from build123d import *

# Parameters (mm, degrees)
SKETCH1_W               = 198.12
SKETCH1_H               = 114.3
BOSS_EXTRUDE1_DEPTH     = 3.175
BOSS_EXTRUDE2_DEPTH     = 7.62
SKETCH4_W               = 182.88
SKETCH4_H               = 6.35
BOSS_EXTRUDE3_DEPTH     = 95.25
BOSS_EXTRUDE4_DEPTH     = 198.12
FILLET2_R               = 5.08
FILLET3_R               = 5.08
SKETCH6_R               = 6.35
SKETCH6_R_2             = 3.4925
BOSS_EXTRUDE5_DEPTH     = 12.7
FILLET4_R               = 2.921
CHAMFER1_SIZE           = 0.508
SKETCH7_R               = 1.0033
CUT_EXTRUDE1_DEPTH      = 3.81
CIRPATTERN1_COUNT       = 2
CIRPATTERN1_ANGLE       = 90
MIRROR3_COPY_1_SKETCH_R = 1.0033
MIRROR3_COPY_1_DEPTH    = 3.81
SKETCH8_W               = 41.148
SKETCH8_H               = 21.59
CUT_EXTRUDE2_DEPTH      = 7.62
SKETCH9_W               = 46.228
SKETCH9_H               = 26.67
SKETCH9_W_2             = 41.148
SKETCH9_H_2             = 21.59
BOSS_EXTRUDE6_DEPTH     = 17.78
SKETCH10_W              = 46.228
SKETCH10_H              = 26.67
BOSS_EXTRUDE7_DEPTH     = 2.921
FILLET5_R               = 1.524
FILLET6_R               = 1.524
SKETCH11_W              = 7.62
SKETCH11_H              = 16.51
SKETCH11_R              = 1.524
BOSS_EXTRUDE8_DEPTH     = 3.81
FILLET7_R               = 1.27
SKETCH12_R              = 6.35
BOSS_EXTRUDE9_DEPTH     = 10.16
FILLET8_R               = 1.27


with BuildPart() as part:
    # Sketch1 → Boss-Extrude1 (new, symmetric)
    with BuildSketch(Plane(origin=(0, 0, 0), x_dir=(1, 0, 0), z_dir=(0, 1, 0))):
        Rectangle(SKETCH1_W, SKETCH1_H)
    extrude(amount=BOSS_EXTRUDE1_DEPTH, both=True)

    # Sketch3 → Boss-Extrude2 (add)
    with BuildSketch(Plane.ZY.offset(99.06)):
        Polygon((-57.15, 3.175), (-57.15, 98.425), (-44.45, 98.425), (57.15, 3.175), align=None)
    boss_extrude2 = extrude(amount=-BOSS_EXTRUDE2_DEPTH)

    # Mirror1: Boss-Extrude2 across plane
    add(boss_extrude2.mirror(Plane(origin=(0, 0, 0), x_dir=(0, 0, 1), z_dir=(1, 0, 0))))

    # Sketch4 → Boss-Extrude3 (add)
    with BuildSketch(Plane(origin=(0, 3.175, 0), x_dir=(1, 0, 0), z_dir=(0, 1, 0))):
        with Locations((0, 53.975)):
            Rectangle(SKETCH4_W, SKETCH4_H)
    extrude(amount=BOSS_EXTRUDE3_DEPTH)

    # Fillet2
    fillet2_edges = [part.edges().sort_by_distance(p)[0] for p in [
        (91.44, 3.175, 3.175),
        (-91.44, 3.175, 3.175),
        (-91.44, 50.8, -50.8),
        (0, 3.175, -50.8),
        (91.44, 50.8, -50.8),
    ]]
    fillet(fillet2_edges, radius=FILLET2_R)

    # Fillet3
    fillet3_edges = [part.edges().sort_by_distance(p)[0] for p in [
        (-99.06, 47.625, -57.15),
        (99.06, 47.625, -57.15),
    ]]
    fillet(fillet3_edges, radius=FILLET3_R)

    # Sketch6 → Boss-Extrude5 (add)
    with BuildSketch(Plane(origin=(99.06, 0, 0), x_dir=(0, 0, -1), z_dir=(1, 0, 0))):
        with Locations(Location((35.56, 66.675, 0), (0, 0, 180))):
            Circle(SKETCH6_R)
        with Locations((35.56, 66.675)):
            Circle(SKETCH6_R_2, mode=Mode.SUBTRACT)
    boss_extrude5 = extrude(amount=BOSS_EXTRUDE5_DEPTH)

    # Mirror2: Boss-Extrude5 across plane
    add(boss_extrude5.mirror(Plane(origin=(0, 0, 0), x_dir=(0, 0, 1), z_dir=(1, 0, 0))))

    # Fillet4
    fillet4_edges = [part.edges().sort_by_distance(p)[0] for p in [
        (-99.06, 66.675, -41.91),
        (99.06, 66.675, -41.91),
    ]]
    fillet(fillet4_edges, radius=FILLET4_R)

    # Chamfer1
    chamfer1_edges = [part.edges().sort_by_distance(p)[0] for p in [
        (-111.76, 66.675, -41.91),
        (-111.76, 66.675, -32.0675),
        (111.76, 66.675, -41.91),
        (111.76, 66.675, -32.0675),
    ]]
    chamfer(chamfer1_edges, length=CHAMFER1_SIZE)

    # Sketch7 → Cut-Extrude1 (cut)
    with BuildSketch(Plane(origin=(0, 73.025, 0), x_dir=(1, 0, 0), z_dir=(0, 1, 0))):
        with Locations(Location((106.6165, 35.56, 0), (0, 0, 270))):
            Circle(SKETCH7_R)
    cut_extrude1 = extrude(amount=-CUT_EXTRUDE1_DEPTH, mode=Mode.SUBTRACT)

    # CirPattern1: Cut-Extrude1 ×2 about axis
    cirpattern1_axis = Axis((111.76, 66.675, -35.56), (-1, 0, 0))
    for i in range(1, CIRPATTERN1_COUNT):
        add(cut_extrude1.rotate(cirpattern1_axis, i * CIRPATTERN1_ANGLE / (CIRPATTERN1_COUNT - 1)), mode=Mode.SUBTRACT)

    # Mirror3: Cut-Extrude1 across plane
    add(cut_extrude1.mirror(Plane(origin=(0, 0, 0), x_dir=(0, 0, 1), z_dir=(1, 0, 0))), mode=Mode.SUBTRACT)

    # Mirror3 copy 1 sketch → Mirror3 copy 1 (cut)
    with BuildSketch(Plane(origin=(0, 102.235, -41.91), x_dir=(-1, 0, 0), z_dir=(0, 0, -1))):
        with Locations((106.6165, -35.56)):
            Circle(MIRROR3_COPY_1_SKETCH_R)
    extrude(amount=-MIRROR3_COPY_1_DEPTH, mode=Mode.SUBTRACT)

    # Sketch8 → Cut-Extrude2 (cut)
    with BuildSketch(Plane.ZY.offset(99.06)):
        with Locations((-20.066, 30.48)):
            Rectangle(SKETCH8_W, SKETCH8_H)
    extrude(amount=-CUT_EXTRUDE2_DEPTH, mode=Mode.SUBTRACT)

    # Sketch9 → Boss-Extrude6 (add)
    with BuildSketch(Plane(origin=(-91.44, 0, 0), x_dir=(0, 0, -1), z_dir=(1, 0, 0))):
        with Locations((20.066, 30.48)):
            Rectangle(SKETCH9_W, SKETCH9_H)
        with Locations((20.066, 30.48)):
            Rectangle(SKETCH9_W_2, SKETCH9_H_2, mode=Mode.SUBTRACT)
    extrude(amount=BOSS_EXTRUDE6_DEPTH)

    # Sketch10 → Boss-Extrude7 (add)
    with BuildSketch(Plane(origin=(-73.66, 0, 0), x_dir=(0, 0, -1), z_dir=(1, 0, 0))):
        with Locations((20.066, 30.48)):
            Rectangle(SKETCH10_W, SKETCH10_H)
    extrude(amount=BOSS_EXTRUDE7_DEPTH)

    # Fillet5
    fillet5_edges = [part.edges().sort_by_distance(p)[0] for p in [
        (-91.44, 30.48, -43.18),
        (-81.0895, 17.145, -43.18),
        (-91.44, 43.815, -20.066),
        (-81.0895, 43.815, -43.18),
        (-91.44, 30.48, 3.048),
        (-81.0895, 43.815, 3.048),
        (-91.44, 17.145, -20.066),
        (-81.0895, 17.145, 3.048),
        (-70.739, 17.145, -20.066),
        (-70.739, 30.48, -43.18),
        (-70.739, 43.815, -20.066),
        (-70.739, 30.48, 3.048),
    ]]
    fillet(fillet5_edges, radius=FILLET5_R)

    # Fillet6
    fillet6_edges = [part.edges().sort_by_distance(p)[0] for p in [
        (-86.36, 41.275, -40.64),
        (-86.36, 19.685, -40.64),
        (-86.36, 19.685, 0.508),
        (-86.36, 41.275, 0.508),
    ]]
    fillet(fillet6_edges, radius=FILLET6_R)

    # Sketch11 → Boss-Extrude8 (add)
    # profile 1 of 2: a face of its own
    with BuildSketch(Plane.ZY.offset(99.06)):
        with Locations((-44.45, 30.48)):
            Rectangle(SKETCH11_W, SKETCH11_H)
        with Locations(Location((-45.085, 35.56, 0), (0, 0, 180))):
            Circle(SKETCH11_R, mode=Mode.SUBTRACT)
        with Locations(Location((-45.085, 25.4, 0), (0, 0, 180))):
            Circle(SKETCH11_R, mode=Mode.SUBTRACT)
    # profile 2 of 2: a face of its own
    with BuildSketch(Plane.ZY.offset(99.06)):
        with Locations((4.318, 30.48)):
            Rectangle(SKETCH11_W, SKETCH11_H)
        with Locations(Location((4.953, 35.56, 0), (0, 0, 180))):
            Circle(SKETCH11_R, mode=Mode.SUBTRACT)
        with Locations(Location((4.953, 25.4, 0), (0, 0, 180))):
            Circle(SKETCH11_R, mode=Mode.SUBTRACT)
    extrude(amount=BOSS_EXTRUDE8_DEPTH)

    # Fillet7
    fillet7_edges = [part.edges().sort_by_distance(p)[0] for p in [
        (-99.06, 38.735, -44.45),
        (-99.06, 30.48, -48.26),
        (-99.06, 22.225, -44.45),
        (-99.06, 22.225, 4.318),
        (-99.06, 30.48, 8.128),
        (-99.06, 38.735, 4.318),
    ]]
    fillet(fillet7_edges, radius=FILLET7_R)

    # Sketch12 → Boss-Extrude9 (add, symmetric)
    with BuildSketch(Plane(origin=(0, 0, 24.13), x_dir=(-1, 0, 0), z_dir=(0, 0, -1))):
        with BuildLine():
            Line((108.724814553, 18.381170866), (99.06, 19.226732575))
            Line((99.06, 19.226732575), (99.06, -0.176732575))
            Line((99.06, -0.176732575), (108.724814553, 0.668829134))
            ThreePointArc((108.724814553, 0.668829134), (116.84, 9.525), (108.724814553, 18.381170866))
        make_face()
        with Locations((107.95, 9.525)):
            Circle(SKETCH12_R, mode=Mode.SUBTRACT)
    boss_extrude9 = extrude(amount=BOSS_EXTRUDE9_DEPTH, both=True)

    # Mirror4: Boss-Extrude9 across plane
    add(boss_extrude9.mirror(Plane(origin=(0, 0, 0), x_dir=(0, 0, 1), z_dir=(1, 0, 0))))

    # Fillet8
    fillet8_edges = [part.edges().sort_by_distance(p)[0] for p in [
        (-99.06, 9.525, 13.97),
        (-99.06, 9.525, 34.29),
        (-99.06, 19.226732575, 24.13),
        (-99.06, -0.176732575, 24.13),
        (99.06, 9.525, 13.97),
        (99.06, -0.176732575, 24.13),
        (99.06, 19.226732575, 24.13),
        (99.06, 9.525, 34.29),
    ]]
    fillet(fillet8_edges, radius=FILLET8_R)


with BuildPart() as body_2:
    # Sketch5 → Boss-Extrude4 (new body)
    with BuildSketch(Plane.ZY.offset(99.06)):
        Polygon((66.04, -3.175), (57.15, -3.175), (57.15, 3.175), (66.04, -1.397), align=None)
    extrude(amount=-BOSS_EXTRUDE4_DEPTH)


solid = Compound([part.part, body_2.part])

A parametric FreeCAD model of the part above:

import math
import FreeCAD as App
import Part
import Sketcher

V = App.Vector
Q = App.Units.Quantity


def edges_at(feature, points):
    """Names of the edges that pass closest to the given points."""
    edges = feature.Shape.Edges
    near = lambda p: min(range(len(edges)), key=lambda i: edges[i].distToShape(Part.Vertex(*p))[0])
    return sorted({f"Edge{near(p) + 1}" for p in points})

doc = App.newDocument("Part")
body = doc.addObject("PartDesign::Body", "Body")

# Sketch on XZ plane
sketch1 = body.newObject("Sketcher::SketchObject", "Sketch")
sketch1.AttachmentSupport = (doc.getObject("XZ_Plane"), [""])
sketch1.MapMode = "FlatFace"
sketch1.addGeometry([
    Part.LineSegment(V(-99, -57, 0), V(-99, 57, 0)),
    Part.LineSegment(V(-99, 57, 0), V(99, 57, 0)),
    Part.LineSegment(V(99, 57, 0), V(99, -57, 0)),
    Part.LineSegment(V(99, -57, 0), V(-99, -57, 0)),
], False)
sketch1.addConstraint([
    Sketcher.Constraint("Coincident", 0, 2, 1, 1),
    Sketcher.Constraint("Coincident", 1, 2, 2, 1),
    Sketcher.Constraint("Coincident", 2, 2, 3, 1),
    Sketcher.Constraint("Coincident", 3, 2, 0, 1),
    Sketcher.Constraint("Vertical", 0),
    Sketcher.Constraint("Horizontal", 1),
    Sketcher.Constraint("Vertical", 2),
    Sketcher.Constraint("Horizontal", 3),
    Sketcher.Constraint("Symmetric", 0, 2, 2, 2, -1, 1),
    Sketcher.Constraint("DistanceX", 1, 1, 1, 2, Q("7.8 in")),
    Sketcher.Constraint("DistanceY", 0, 1, 0, 2, Q("4.5 in")),
])
pad1 = body.newObject("PartDesign::Pad", "Pad")
pad1.Profile = sketch1
pad1.Length = Q("0.25 in")
pad1.Midplane = True

# Sketch on YZ plane
sketch2 = body.newObject("Sketcher::SketchObject", "Sketch001")
sketch2.AttachmentSupport = (doc.getObject("YZ_Plane"), [""])
sketch2.MapMode = "FlatFace"
sketch2.AttachmentOffset = App.Placement(V(0, 0, -3.9 * 25.4), App.Rotation())
sketch2.addGeometry([
    Part.LineSegment(V(98, -57, 0), V(3, -57, 0)),
    Part.LineSegment(V(3, -57, 0), V(3, 57, 0)),
    Part.LineSegment(V(3, 57, 0), V(98, -44, 0)),
    Part.LineSegment(V(98, -44, 0), V(98, -57, 0)),
], False)
sketch2.addConstraint([
    Sketcher.Constraint("Coincident", 0, 2, 1, 1),
    Sketcher.Constraint("Coincident", 1, 2, 2, 1),
    Sketcher.Constraint("Coincident", 2, 2, 3, 1),
    Sketcher.Constraint("Coincident", 3, 2, 0, 1),
    Sketcher.Constraint("Horizontal", 0),
    Sketcher.Constraint("Vertical", 1),
    Sketcher.Constraint("Vertical", 3),
    Sketcher.Constraint("DistanceY", 1, 1, 1, 2, Q("4.5 in")),
    Sketcher.Constraint("DistanceY", 3, 2, 3, 1, Q("0.5 in")),
    Sketcher.Constraint("DistanceX", 0, 2, 0, 1, Q("3.75 in")),
    Sketcher.Constraint("DistanceY", 0, 2, -1, 1, Q("2.25 in")),
    Sketcher.Constraint("DistanceX", -1, 1, 0, 2, Q("0.125 in")),
])
pad2 = body.newObject("PartDesign::Pad", "Pad001")
pad2.Profile = sketch2
pad2.Length = Q("0.3 in")
doc.recompute()

mirrored = body.newObject("PartDesign::Mirrored", "Mirrored")
mirrored.Originals = [pad2]
mirrored.MirrorPlane = (doc.getObject("YZ_Plane"), [""])
body.Tip = mirrored

# Sketch on XZ plane
sketch3 = body.newObject("Sketcher::SketchObject", "Sketch002")
sketch3.AttachmentSupport = (doc.getObject("XZ_Plane"), [""])
sketch3.MapMode = "FlatFace"
sketch3.AttachmentOffset = App.Placement(V(0, 0, -0.125 * 25.4), App.Rotation())
sketch3.addGeometry([
    Part.LineSegment(V(-91, -57, 0), V(-91, -51, 0)),
    Part.LineSegment(V(-91, -51, 0), V(91, -51, 0)),
    Part.LineSegment(V(91, -51, 0), V(91, -57, 0)),
    Part.LineSegment(V(91, -57, 0), V(-91, -57, 0)),
], False)
sketch3.addConstraint([
    Sketcher.Constraint("Coincident", 0, 2, 1, 1),
    Sketcher.Constraint("Coincident", 1, 2, 2, 1),
    Sketcher.Constraint("Coincident", 2, 2, 3, 1),
    Sketcher.Constraint("Coincident", 3, 2, 0, 1),
    Sketcher.Constraint("Vertical", 0),
    Sketcher.Constraint("Horizontal", 1),
    Sketcher.Constraint("Vertical", 2),
    Sketcher.Constraint("Horizontal", 3),
    Sketcher.Constraint("DistanceX", 1, 1, 1, 2, Q("7.2 in")),
    Sketcher.Constraint("DistanceY", 0, 2, -1, 1, Q("2 in")),
    Sketcher.Constraint("DistanceY", 0, 1, 0, 2, Q("0.25 in")),
    Sketcher.Constraint("DistanceX", 0, 2, -1, 1, Q("3.6 in")),
])
pad3 = body.newObject("PartDesign::Pad", "Pad002")
pad3.Profile = sketch3
pad3.Length = Q("3.75 in")
pad3.Reversed = True
doc.recompute()

fillet = body.newObject("PartDesign::Fillet", "Fillet")
fillet.Base = (pad3, edges_at(pad3, [
    (91.44, 3.175, 3.175),
    (-91.44, 3.175, 3.175),
    (-91.44, 50.8, -50.8),
    (0, 3.175, -50.8),
    (91.44, 50.8, -50.8),
]))
fillet.Radius = Q("0.2 in")
doc.recompute()

fillet2 = body.newObject("PartDesign::Fillet", "Fillet001")
fillet2.Base = (fillet, edges_at(fillet, [(-99.06, 47.625, -57.15), (99.06, 47.625, -57.15)]))
fillet2.Radius = Q("0.2 in")

# Sketch on YZ plane
sketch4 = body.newObject("Sketcher::SketchObject", "Sketch003")
sketch4.AttachmentSupport = (doc.getObject("YZ_Plane"), [""])
sketch4.MapMode = "FlatFace"
sketch4.AttachmentOffset = App.Placement(V(0, 0, 3.9 * 25.4), App.Rotation())
sketch4.addGeometry([
    Part.Circle(V(66.7, -35.6, 0), V(0, 0, 1), 6.3),
    Part.Circle(V(66.7, -35.6, 0), V(0, 0, 1), 3.5),
], False)
sketch4.addConstraint([
    Sketcher.Constraint("Coincident", 1, 3, 0, 3),
    Sketcher.Constraint("Diameter", 0, Q("0.5 in")),
    Sketcher.Constraint("Diameter", 1, Q("0.275 in")),
    Sketcher.Constraint("DistanceY", 0, 3, -1, 1, Q("1.4 in")),
    Sketcher.Constraint("DistanceX", -1, 1, 0, 3, Q("2.625 in")),
])
pad4 = body.newObject("PartDesign::Pad", "Pad003")
pad4.Profile = sketch4
pad4.Length = Q("0.5 in")
doc.recompute()

mirrored2 = body.newObject("PartDesign::Mirrored", "Mirrored001")
mirrored2.Originals = [pad4]
mirrored2.MirrorPlane = (doc.getObject("YZ_Plane"), [""])
body.Tip = mirrored2
doc.recompute()

fillet3 = body.newObject("PartDesign::Fillet", "Fillet002")
fillet3.Base = (mirrored2, edges_at(mirrored2, [(-99.06, 66.675, -41.91), (99.06, 66.675, -41.91)]))
fillet3.Radius = Q("0.115 in")
doc.recompute()

chamfer = body.newObject("PartDesign::Chamfer", "Chamfer")
chamfer.Base = (fillet3, edges_at(fillet3, [
    (-111.76, 66.675, -41.91),
    (-111.76, 66.675, -32.068),
    (111.76, 66.675, -41.91),
    (111.76, 66.675, -32.068),
]))
chamfer.Size = Q("0.02 in")

# Sketch on XZ plane
sketch5 = body.newObject("Sketcher::SketchObject", "Sketch004")
sketch5.AttachmentSupport = (doc.getObject("XZ_Plane"), [""])
sketch5.MapMode = "FlatFace"
sketch5.AttachmentOffset = App.Placement(V(0, 0, -2.875 * 25.4), App.Rotation())
sketch5.addGeometry(Part.Circle(V(106.6, -35.6, 0), V(0, 0, 1), 1), False)
sketch5.addConstraint([
    Sketcher.Constraint("Diameter", 0, Q("0.079 in")),
    Sketcher.Constraint("DistanceY", 0, 3, -1, 1, Q("1.4 in")),
    Sketcher.Constraint("DistanceX", -1, 1, 0, 3, Q("4.1975 in")),
])
pocket1 = body.newObject("PartDesign::Pocket", "Pocket")
pocket1.Profile = sketch5
pocket1.Length = Q("0.15 in")
pocket1.Reversed = True
doc.recompute()

datumline = body.newObject("PartDesign::Line", "DatumLine")
datumline.Placement = App.Placement(V(0, 66.675, -35.56), App.Rotation(V(0, 0, 1), V(-1, 0, 0)))
polarpattern = body.newObject("PartDesign::PolarPattern", "PolarPattern")
polarpattern.Originals = [pocket1]
polarpattern.Axis = (datumline, [""])
polarpattern.Angle = 90
polarpattern.Occurrences = 2
body.Tip = polarpattern
doc.recompute()

mirrored3 = body.newObject("PartDesign::Mirrored", "Mirrored002")
mirrored3.Originals = [pocket1]
mirrored3.MirrorPlane = (doc.getObject("YZ_Plane"), [""])
body.Tip = mirrored3

# Sketch on XY plane
sketch6 = body.newObject("Sketcher::SketchObject", "Sketch005")
sketch6.AttachmentSupport = (doc.getObject("XY_Plane"), [""])
sketch6.MapMode = "FlatFace"
sketch6.AttachmentOffset = App.Placement(V(0, 0, -1.65 * 25.4), App.Rotation())
sketch6.addGeometry(Part.Circle(V(-106.6, 66.7, 0), V(0, 0, 1), 1), False)
sketch6.addConstraint([
    Sketcher.Constraint("Diameter", 0, Q("0.079 in")),
    Sketcher.Constraint("DistanceY", -1, 1, 0, 3, Q("2.625 in")),
    Sketcher.Constraint("DistanceX", 0, 3, -1, 1, Q("4.1975 in")),
])
pocket2 = body.newObject("PartDesign::Pocket", "Pocket001")
pocket2.Profile = sketch6
pocket2.Length = Q("0.15 in")
pocket2.Reversed = True

# Sketch on YZ plane
sketch7 = body.newObject("Sketcher::SketchObject", "Sketch006")
sketch7.AttachmentSupport = (doc.getObject("YZ_Plane"), [""])
sketch7.MapMode = "FlatFace"
sketch7.AttachmentOffset = App.Placement(V(0, 0, -3.9 * 25.4), App.Rotation())
sketch7.addGeometry([
    Part.LineSegment(V(41, -41, 0), V(20, -41, 0)),
    Part.LineSegment(V(20, -41, 0), V(20, 1, 0)),
    Part.LineSegment(V(20, 1, 0), V(41, 1, 0)),
    Part.LineSegment(V(41, 1, 0), V(41, -41, 0)),
], False)
sketch7.addConstraint([
    Sketcher.Constraint("Coincident", 0, 2, 1, 1),
    Sketcher.Constraint("Coincident", 1, 2, 2, 1),
    Sketcher.Constraint("Coincident", 2, 2, 3, 1),
    Sketcher.Constraint("Coincident", 3, 2, 0, 1),
    Sketcher.Constraint("Horizontal", 0),
    Sketcher.Constraint("Vertical", 1),
    Sketcher.Constraint("Horizontal", 2),
    Sketcher.Constraint("Vertical", 3),
    Sketcher.Constraint("DistanceX", 0, 2, 0, 1, Q("0.85 in")),
    Sketcher.Constraint("DistanceY", 1, 1, 1, 2, Q("1.62 in")),
    Sketcher.Constraint("DistanceY", 0, 2, -1, 1, Q("1.6 in")),
    Sketcher.Constraint("DistanceX", -1, 1, 0, 2, Q("0.775 in")),
])
pocket3 = body.newObject("PartDesign::Pocket", "Pocket002")
pocket3.Profile = sketch7
pocket3.Length = Q("0.3 in")
pocket3.Reversed = True

# Sketch on YZ plane
sketch8 = body.newObject("Sketcher::SketchObject", "Sketch007")
sketch8.AttachmentSupport = (doc.getObject("YZ_Plane"), [""])
sketch8.MapMode = "FlatFace"
sketch8.AttachmentOffset = App.Placement(V(0, 0, -3.6 * 25.4), App.Rotation())
sketch8.addGeometry([
    Part.LineSegment(V(44, 3, 0), V(17, 3, 0)),  # 0
    Part.LineSegment(V(17, 3, 0), V(17, -43, 0)),  # 1
    Part.LineSegment(V(17, -43, 0), V(44, -43, 0)),  # 2
    Part.LineSegment(V(44, -43, 0), V(44, 3, 0)),  # 3
    Part.LineSegment(V(20, -41, 0), V(20, 1, 0)),  # 4
    Part.LineSegment(V(20, 1, 0), V(41, 1, 0)),  # 5
    Part.LineSegment(V(41, 1, 0), V(41, -41, 0)),  # 6
    Part.LineSegment(V(41, -41, 0), V(20, -41, 0)),  # 7
], False)
sketch8.addConstraint([
    Sketcher.Constraint("Coincident", 0, 2, 1, 1),
    Sketcher.Constraint("Coincident", 1, 2, 2, 1),
    Sketcher.Constraint("Coincident", 2, 2, 3, 1),
    Sketcher.Constraint("Coincident", 3, 2, 0, 1),
    Sketcher.Constraint("Coincident", 4, 2, 5, 1),
    Sketcher.Constraint("Coincident", 5, 2, 6, 1),
    Sketcher.Constraint("Coincident", 6, 2, 7, 1),
    Sketcher.Constraint("Coincident", 7, 2, 4, 1),
    Sketcher.Constraint("Horizontal", 0),
    Sketcher.Constraint("Vertical", 1),
    Sketcher.Constraint("Horizontal", 2),
    Sketcher.Constraint("Vertical", 3),
    Sketcher.Constraint("Vertical", 4),
    Sketcher.Constraint("Horizontal", 5),
    Sketcher.Constraint("Vertical", 6),
    Sketcher.Constraint("Horizontal", 7),
    Sketcher.Constraint("DistanceX", 0, 2, 0, 1, Q("1.05 in")),
    Sketcher.Constraint("DistanceX", 5, 1, 5, 2, Q("0.85 in")),
    Sketcher.Constraint("DistanceY", 1, 2, 1, 1, Q("1.82 in")),
    Sketcher.Constraint("DistanceY", 4, 1, 4, 2, Q("1.62 in")),
    Sketcher.Constraint("DistanceY", 1, 2, -1, 1, Q("1.7 in")),
    Sketcher.Constraint("DistanceY", 6, 2, -1, 1, Q("1.6 in")),
    Sketcher.Constraint("DistanceX", 0, 2, 4, 2, Q("0.1 in")),
    Sketcher.Constraint("DistanceX", -1, 1, 0, 2, Q("0.675 in")),
])
pad5 = body.newObject("PartDesign::Pad", "Pad004")
pad5.Profile = sketch8
pad5.Length = Q("0.7 in")

# Sketch on YZ plane
sketch9 = body.newObject("Sketcher::SketchObject", "Sketch008")
sketch9.AttachmentSupport = (doc.getObject("YZ_Plane"), [""])
sketch9.MapMode = "FlatFace"
sketch9.AttachmentOffset = App.Placement(V(0, 0, -2.9 * 25.4), App.Rotation())
sketch9.addGeometry([
    Part.LineSegment(V(44, 3, 0), V(17, 3, 0)),
    Part.LineSegment(V(17, 3, 0), V(17, -43, 0)),
    Part.LineSegment(V(17, -43, 0), V(44, -43, 0)),
    Part.LineSegment(V(44, -43, 0), V(44, 3, 0)),
], False)
sketch9.addConstraint([
    Sketcher.Constraint("Coincident", 0, 2, 1, 1),
    Sketcher.Constraint("Coincident", 1, 2, 2, 1),
    Sketcher.Constraint("Coincident", 2, 2, 3, 1),
    Sketcher.Constraint("Coincident", 3, 2, 0, 1),
    Sketcher.Constraint("Horizontal", 0),
    Sketcher.Constraint("Vertical", 1),
    Sketcher.Constraint("Horizontal", 2),
    Sketcher.Constraint("Vertical", 3),
    Sketcher.Constraint("DistanceX", 0, 2, 0, 1, Q("1.05 in")),
    Sketcher.Constraint("DistanceY", 1, 2, 1, 1, Q("1.82 in")),
    Sketcher.Constraint("DistanceY", 1, 2, -1, 1, Q("1.7 in")),
    Sketcher.Constraint("DistanceX", -1, 1, 0, 2, Q("0.675 in")),
])
pad6 = body.newObject("PartDesign::Pad", "Pad005")
pad6.Profile = sketch9
pad6.Length = Q("0.115 in")
doc.recompute()

fillet4 = body.newObject("PartDesign::Fillet", "Fillet003")
fillet4.Base = (pad6, edges_at(pad6, [
    (-91.44, 30.48, -43.18),
    (-81.09, 17.145, -43.18),
    (-91.44, 43.815, -20.066),
    (-81.09, 43.815, -43.18),
    (-91.44, 30.48, 3.048),
    (-81.09, 43.815, 3.048),
    (-91.44, 17.145, -20.066),
    (-81.09, 17.145, 3.048),
    (-70.739, 17.145, -20.066),
    (-70.739, 30.48, -43.18),
    (-70.739, 43.815, -20.066),
    (-70.739, 30.48, 3.048),
]))
fillet4.Radius = Q("0.06 in")
doc.recompute()

fillet5 = body.newObject("PartDesign::Fillet", "Fillet004")
fillet5.Base = (fillet4, edges_at(fillet4, [
    (-86.36, 41.275, -40.64),
    (-86.36, 19.685, -40.64),
    (-86.36, 19.685, 0.508),
    (-86.36, 41.275, 0.508),
]))
fillet5.Radius = Q("0.06 in")

# Sketch on YZ plane
sketch10 = body.newObject("Sketcher::SketchObject", "Sketch009")
sketch10.AttachmentSupport = (doc.getObject("YZ_Plane"), [""])
sketch10.MapMode = "FlatFace"
sketch10.AttachmentOffset = App.Placement(V(0, 0, -3.9 * 25.4), App.Rotation())
sketch10.addGeometry([
    Part.LineSegment(V(38.7, -48.3, 0), V(22.2, -48.3, 0)),  # 0
    Part.LineSegment(V(22.2, -48.3, 0), V(22.2, -40.6, 0)),  # 1
    Part.LineSegment(V(22.2, -40.6, 0), V(38.7, -40.6, 0)),  # 2
    Part.LineSegment(V(38.7, -40.6, 0), V(38.7, -48.3, 0)),  # 3
    Part.Circle(V(25.4, -45.1, 0), V(0, 0, 1), 1.5),  # 4
    Part.Circle(V(35.6, -45.1, 0), V(0, 0, 1), 1.5),  # 5
    Part.LineSegment(V(38.7, 0.5, 0), V(22.2, 0.5, 0)),  # 6
    Part.LineSegment(V(22.2, 0.5, 0), V(22.2, 8.1, 0)),  # 7
    Part.LineSegment(V(22.2, 8.1, 0), V(38.7, 8.1, 0)),  # 8
    Part.LineSegment(V(38.7, 8.1, 0), V(38.7, 0.5, 0)),  # 9
    Part.Circle(V(25.4, 5, 0), V(0, 0, 1), 1.5),  # 10
    Part.Circle(V(35.6, 5, 0), V(0, 0, 1), 1.5),  # 11
], False)
sketch10.addConstraint([
    Sketcher.Constraint("Coincident", 0, 2, 1, 1),
    Sketcher.Constraint("Coincident", 1, 2, 2, 1),
    Sketcher.Constraint("Coincident", 2, 2, 3, 1),
    Sketcher.Constraint("Coincident", 3, 2, 0, 1),
    Sketcher.Constraint("Coincident", 6, 2, 7, 1),
    Sketcher.Constraint("Coincident", 7, 2, 8, 1),
    Sketcher.Constraint("Coincident", 8, 2, 9, 1),
    Sketcher.Constraint("Coincident", 9, 2, 6, 1),
    Sketcher.Constraint("Horizontal", 0),
    Sketcher.Constraint("Vertical", 1),
    Sketcher.Constraint("Horizontal", 2),
    Sketcher.Constraint("Vertical", 3),
    Sketcher.Constraint("Horizontal", 6),
    Sketcher.Constraint("Vertical", 7),
    Sketcher.Constraint("Horizontal", 8),
    Sketcher.Constraint("Vertical", 9),
    Sketcher.Constraint("Equal", 4, 5),
    Sketcher.Constraint("Equal", 5, 10),
    Sketcher.Constraint("Equal", 10, 11),
    Sketcher.Constraint("Horizontal", 4, 3, 5, 3),
    Sketcher.Constraint("Horizontal", 10, 3, 11, 3),
    Sketcher.Constraint("Vertical", 4, 3, 10, 3),
    Sketcher.Constraint("Vertical", 5, 3, 11, 3),
    Sketcher.Constraint("Vertical", 1, 2, 6, 2),
    Sketcher.Constraint("Vertical", 3, 2, 8, 2),
    Sketcher.Constraint("Equal", 3, 7),
    Sketcher.Constraint("Diameter", 4, Q("0.12 in")),
    Sketcher.Constraint("DistanceY", 1, 1, 1, 2, Q("0.3 in")),
    Sketcher.Constraint("DistanceX", -1, 1, 4, 3, Q("1 in")),
    Sketcher.Constraint("DistanceX", 0, 2, 0, 1, Q("0.65 in")),
    Sketcher.Constraint("DistanceX", -1, 1, 5, 3, Q("1.4 in")),
    Sketcher.Constraint("DistanceY", 0, 2, -1, 1, Q("1.9 in")),
    Sketcher.Constraint("DistanceY", -1, 1, 6, 2, Q("0.02 in")),
    Sketcher.Constraint("DistanceY", 4, 3, 10, 3, Q("1.97 in")),
    Sketcher.Constraint("DistanceY", 4, 3, -1, 1, Q("1.775 in")),
    Sketcher.Constraint("DistanceX", -1, 1, 0, 2, Q("0.875 in")),
])
pad7 = body.newObject("PartDesign::Pad", "Pad006")
pad7.Profile = sketch10
pad7.Length = Q("0.15 in")
pad7.Reversed = True
doc.recompute()

fillet6 = body.newObject("PartDesign::Fillet", "Fillet005")
fillet6.Base = (pad7, edges_at(pad7, [
    (-99.06, 38.735, -44.45),
    (-99.06, 30.48, -48.26),
    (-99.06, 22.225, -44.45),
    (-99.06, 22.225, 4.318),
    (-99.06, 30.48, 8.128),
    (-99.06, 38.735, 4.318),
]))
fillet6.Radius = Q("0.05 in")

# Sketch on XY plane
sketch11 = body.newObject("Sketcher::SketchObject", "Sketch010")
sketch11.AttachmentSupport = (doc.getObject("XY_Plane"), [""])
sketch11.MapMode = "FlatFace"
sketch11.AttachmentOffset = App.Placement(V(0, 0, 0.95 * 25.4), App.Rotation())
sketch11.addGeometry([
    Part.LineSegment(V(-109, 18, 0), V(-99, 19, 0)),  # 0
    Part.LineSegment(V(-99, 19, 0), V(-99, 0, 0)),  # 1
    Part.LineSegment(V(-99, 0, 0), V(-109, 1, 0)),  # 2
    Part.ArcOfCircle(Part.Circle(V(-108, 10, 0), V(0, 0, 1), 9), math.radians(95), math.radians(265)),  # 3
    Part.Circle(V(-108, 10, 0), V(0, 0, 1), 6),  # 4
], False)
sketch11.addConstraint([
    Sketcher.Constraint("Coincident", 0, 2, 1, 1),
    Sketcher.Constraint("Coincident", 1, 2, 2, 1),
    Sketcher.Constraint("Tangent", 2, 2, 3, 2),
    Sketcher.Constraint("Tangent", 3, 1, 0, 1),
    Sketcher.Constraint("Vertical", 1),
    Sketcher.Constraint("Coincident", 4, 3, 3, 3),
    Sketcher.Constraint("Vertical", 2, 2, 3, 1),
    Sketcher.Constraint("Diameter", 4, Q("0.5 in")),
    Sketcher.Constraint("Radius", 3, Q("0.35 in")),
    Sketcher.Constraint("Angle", 0, Q("5 deg")),
    Sketcher.Constraint("DistanceX", 0, 2, -1, 1, Q("3.9 in")),
    Sketcher.Constraint("DistanceX", 3, 3, -1, 1, Q("4.25 in")),
    Sketcher.Constraint("DistanceY", -1, 1, 3, 3, Q("0.375 in")),
])
pad8 = body.newObject("PartDesign::Pad", "Pad007")
pad8.Profile = sketch11
pad8.Length = Q("0.8 in")
pad8.Midplane = True
doc.recompute()

mirrored4 = body.newObject("PartDesign::Mirrored", "Mirrored003")
mirrored4.Originals = [pad8]
mirrored4.MirrorPlane = (doc.getObject("YZ_Plane"), [""])
body.Tip = mirrored4
doc.recompute()

fillet7 = body.newObject("PartDesign::Fillet", "Fillet006")
fillet7.Base = (mirrored4, edges_at(mirrored4, [
    (-99.06, 9.525, 13.97),
    (-99.06, 9.525, 34.29),
    (-99.06, 19.227, 24.13),
    (-99.06, -0.177, 24.13),
    (99.06, 9.525, 13.97),
    (99.06, -0.177, 24.13),
    (99.06, 19.227, 24.13),
    (99.06, 9.525, 34.29),
]))
fillet7.Radius = Q("0.05 in")
body2 = doc.addObject("PartDesign::Body", "Body001")

# Sketch on YZ plane
sketch12 = body2.newObject("Sketcher::SketchObject", "Sketch011")
sketch12.AttachmentSupport = (doc.getObject("YZ_Plane001"), [""])
sketch12.MapMode = "FlatFace"
sketch12.AttachmentOffset = App.Placement(V(0, 0, -3.9 * 25.4), App.Rotation())
sketch12.addGeometry([
    Part.LineSegment(V(-3.2, 57.1, 0), V(-3.2, 66, 0)),
    Part.LineSegment(V(-3.2, 66, 0), V(-1.4, 66, 0)),
    Part.LineSegment(V(-1.4, 66, 0), V(3.2, 57.1, 0)),
    Part.LineSegment(V(3.2, 57.1, 0), V(-3.2, 57.1, 0)),
], False)
sketch12.addConstraint([
    Sketcher.Constraint("Coincident", 0, 2, 1, 1),
    Sketcher.Constraint("Coincident", 1, 2, 2, 1),
    Sketcher.Constraint("Coincident", 2, 2, 3, 1),
    Sketcher.Constraint("Coincident", 3, 2, 0, 1),
    Sketcher.Constraint("Vertical", 0),
    Sketcher.Constraint("Horizontal", 1),
    Sketcher.Constraint("Horizontal", 3),
    Sketcher.Constraint("DistanceX", 1, 1, 1, 2, Q("0.07 in")),
    Sketcher.Constraint("DistanceX", 3, 2, 3, 1, Q("0.25 in")),
    Sketcher.Constraint("DistanceY", 0, 1, 0, 2, Q("0.35 in")),
    Sketcher.Constraint("DistanceY", -1, 1, 0, 2, Q("2.6 in")),
    Sketcher.Constraint("DistanceX", 0, 2, -1, 1, Q("0.125 in")),
])
pad9 = body2.newObject("PartDesign::Pad", "Pad008")
pad9.Profile = sketch12
pad9.Length = Q("7.8 in")

doc.recompute()
